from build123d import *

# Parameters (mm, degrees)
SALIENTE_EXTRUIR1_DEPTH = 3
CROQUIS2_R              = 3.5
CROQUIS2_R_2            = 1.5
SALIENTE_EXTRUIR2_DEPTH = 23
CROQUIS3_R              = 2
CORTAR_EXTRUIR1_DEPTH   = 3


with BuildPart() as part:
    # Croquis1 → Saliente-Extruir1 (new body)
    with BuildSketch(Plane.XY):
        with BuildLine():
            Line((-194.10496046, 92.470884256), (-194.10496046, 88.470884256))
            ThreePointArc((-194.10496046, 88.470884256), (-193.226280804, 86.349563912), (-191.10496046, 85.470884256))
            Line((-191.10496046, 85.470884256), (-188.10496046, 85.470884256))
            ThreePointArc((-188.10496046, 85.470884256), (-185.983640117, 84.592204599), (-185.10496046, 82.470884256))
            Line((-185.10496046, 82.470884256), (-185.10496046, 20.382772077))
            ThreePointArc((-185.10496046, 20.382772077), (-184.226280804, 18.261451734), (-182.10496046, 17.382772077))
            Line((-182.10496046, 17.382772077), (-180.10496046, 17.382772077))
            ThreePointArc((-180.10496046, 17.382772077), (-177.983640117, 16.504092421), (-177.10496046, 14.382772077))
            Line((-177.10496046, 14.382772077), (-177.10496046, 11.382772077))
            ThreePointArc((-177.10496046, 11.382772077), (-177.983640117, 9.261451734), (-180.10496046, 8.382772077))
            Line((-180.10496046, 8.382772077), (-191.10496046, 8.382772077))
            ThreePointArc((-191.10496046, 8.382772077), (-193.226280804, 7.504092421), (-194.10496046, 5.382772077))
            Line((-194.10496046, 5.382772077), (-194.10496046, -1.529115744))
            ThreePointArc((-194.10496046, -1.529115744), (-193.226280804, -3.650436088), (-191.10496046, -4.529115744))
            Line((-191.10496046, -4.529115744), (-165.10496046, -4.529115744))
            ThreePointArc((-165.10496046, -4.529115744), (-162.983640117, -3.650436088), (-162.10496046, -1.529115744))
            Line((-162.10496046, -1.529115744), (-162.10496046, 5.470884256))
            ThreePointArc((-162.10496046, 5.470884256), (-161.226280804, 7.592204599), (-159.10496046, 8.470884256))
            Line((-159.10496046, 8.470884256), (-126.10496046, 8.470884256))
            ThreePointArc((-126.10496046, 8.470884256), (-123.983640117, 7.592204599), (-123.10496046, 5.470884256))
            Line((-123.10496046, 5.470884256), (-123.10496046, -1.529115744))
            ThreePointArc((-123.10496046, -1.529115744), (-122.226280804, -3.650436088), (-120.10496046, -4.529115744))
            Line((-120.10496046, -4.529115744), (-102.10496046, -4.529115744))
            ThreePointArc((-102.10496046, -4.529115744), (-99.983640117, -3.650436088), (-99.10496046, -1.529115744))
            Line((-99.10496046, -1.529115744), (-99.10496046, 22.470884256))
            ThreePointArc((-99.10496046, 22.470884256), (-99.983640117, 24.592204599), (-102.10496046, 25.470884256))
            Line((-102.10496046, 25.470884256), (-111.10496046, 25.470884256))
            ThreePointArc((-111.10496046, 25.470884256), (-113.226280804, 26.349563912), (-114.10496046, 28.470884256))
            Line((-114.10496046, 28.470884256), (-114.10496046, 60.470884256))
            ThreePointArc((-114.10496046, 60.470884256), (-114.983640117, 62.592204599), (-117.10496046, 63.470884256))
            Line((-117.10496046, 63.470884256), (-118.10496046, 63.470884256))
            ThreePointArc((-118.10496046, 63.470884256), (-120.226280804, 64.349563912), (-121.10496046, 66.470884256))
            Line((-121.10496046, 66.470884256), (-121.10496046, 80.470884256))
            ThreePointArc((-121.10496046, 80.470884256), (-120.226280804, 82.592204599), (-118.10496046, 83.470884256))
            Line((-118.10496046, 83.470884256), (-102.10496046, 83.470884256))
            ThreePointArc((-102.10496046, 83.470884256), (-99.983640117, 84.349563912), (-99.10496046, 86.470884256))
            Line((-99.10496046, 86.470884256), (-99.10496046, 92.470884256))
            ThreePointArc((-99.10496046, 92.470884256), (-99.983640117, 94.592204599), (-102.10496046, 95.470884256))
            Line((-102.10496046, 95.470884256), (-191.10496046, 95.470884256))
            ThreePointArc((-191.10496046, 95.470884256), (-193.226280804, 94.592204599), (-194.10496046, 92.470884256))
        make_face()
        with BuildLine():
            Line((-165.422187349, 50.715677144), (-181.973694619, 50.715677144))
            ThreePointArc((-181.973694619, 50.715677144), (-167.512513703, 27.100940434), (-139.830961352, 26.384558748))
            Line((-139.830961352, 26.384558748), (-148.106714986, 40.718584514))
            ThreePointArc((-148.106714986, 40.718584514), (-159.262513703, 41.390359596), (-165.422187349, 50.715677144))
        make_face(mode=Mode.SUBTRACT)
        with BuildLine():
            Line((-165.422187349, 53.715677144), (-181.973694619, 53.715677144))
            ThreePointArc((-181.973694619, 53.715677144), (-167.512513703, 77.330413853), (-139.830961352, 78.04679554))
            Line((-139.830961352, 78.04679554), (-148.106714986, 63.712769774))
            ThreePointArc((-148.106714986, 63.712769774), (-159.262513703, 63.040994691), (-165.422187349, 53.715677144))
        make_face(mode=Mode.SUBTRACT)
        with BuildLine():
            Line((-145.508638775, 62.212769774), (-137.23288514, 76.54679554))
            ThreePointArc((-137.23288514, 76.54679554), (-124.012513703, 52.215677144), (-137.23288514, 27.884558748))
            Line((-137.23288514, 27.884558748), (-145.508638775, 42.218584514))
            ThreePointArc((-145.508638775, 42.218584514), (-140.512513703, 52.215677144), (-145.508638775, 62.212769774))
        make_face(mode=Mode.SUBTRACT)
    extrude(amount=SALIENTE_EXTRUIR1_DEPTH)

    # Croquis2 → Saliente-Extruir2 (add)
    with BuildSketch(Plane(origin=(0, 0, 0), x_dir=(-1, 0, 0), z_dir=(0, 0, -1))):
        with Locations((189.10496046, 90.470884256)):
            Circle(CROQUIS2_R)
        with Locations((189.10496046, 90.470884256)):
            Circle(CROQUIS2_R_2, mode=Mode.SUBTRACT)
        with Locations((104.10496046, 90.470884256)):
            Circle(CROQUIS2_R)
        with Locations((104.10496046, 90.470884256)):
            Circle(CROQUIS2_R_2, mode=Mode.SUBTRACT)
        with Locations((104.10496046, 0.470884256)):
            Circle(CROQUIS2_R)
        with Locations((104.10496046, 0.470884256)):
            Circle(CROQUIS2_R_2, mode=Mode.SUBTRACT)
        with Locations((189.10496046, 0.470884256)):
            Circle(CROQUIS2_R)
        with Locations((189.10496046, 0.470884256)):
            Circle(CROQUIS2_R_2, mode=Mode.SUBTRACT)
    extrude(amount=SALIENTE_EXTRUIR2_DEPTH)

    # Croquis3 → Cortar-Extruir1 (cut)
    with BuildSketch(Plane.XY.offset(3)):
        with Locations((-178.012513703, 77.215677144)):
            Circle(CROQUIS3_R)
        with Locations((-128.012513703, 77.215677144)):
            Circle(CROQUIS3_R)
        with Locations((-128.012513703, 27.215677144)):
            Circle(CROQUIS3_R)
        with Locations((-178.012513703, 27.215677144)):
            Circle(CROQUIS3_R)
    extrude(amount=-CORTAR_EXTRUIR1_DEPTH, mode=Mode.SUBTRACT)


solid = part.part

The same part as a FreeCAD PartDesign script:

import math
import FreeCAD as App
import Part
import Sketcher
from FreeCAD import Vector
Q = App.Units.Quantity

doc = App.newDocument("Part")
params = doc.addObject("Spreadsheet::Sheet", "Params")
for row, (alias, value) in enumerate([
    ("sketch1_radius", "3 mm"),
    ("sketch1_radius2", "29 mm"),
    ("sketch1_radius3", "12.5 mm"),
    ("sketch1_width", "3 mm"),
    ("sketch1_width2", "2 mm"),
    ("pad1_length", "3 mm"),
    ("sketch2_diameter", "7 mm"),
    ("sketch2_diameter2", "3 mm"),
    ("pad2_length", "23 mm"),
    ("sketch3_diameter", "4 mm"),
    ("pocket1_length", "3 mm"),
], start=1):
    params.set(f"A{row}", alias)
    params.set(f"B{row}", "=" + value)
    params.setAlias(f"B{row}", alias)

body = doc.addObject("PartDesign::Body", "Body")

sketch1 = doc.addObject("Sketcher::SketchObject", "Sketch")
body.addObject(sketch1)
sketch1.AttachmentSupport = (doc.XY_Plane, [""])
sketch1.MapMode = "FlatFace"
sketch1.addGeometry([
    Part.LineSegment(Vector(-194.1, 92.5, 0), Vector(-194.1, 88.5, 0)),
    Part.ArcOfCircle(Part.Circle(Vector(-191.1, 88.5, 0), Vector(0, 0, 1), 3), math.radians(180), math.radians(270)),
    Part.LineSegment(Vector(-191.1, 85.5, 0), Vector(-188.1, 85.5, 0)),
    Part.ArcOfCircle(Part.Circle(Vector(-188.1, 82.5, 0), Vector(0, 0, 1), 3), math.radians(0), math.radians(90)),
    Part.LineSegment(Vector(-185.1, 82.5, 0), Vector(-185.1, 20.4, 0)),
    Part.ArcOfCircle(Part.Circle(Vector(-182.1, 20.4, 0), Vector(0, 0, 1), 3), math.radians(180), math.radians(270)),
    Part.LineSegment(Vector(-182.1, 17.4, 0), Vector(-180.1, 17.4, 0)),
    Part.ArcOfCircle(Part.Circle(Vector(-180.1, 14.4, 0), Vector(0, 0, 1), 3), math.radians(0), math.radians(90)),
    Part.LineSegment(Vector(-177.1, 14.4, 0), Vector(-177.1, 11.4, 0)),
    Part.ArcOfCircle(Part.Circle(Vector(-180.1, 11.4, 0), Vector(0, 0, 1), 3), math.radians(-90), math.radians(0)),
    Part.LineSegment(Vector(-180.1, 8.4, 0), Vector(-191.1, 8.4, 0)),
    Part.ArcOfCircle(Part.Circle(Vector(-191.1, 5.4, 0), Vector(0, 0, 1), 3), math.radians(90), math.radians(180)),
    Part.LineSegment(Vector(-194.1, 5.4, 0), Vector(-194.1, -1.5, 0)),
    Part.ArcOfCircle(Part.Circle(Vector(-191.1, -1.5, 0), Vector(0, 0, 1), 3), math.radians(180), math.radians(270)),
    Part.LineSegment(Vector(-191.1, -4.5, 0), Vector(-165.1, -4.5, 0)),
    Part.ArcOfCircle(Part.Circle(Vector(-165.1, -1.5, 0), Vector(0, 0, 1), 3), math.radians(-90), math.radians(0)),
    Part.LineSegment(Vector(-162.1, -1.5, 0), Vector(-162.1, 5.5, 0)),
    Part.ArcOfCircle(Part.Circle(Vector(-159.1, 5.5, 0), Vector(0, 0, 1), 3), math.radians(90), math.radians(180)),
    Part.LineSegment(Vector(-159.1, 8.5, 0), Vector(-126.1, 8.5, 0)),
    Part.ArcOfCircle(Part.Circle(Vector(-126.1, 5.5, 0), Vector(0, 0, 1), 3), math.radians(0), math.radians(90)),
    Part.LineSegment(Vector(-123.1, 5.5, 0), Vector(-123.1, -1.5, 0)),
    Part.ArcOfCircle(Part.Circle(Vector(-120.1, -1.5, 0), Vector(0, 0, 1), 3), math.radians(180), math.radians(270)),
    Part.LineSegment(Vector(-120.1, -4.5, 0), Vector(-102.1, -4.5, 0)),
    Part.ArcOfCircle(Part.Circle(Vector(-102.1, -1.5, 0), Vector(0, 0, 1), 3), math.radians(-90), math.radians(0)),
    Part.LineSegment(Vector(-99.1, -1.5, 0), Vector(-99.1, 22.5, 0)),
    Part.ArcOfCircle(Part.Circle(Vector(-102.1, 22.5, 0), Vector(0, 0, 1), 3), math.radians(0), math.radians(90)),
    Part.LineSegment(Vector(-102.1, 25.5, 0), Vector(-111.1, 25.5, 0)),
    Part.ArcOfCircle(Part.Circle(Vector(-111.1, 28.5, 0), Vector(0, 0, 1), 3), math.radians(180), math.radians(270)),
    Part.LineSegment(Vector(-114.1, 28.5, 0), Vector(-114.1, 60.5, 0)),
    Part.ArcOfCircle(Part.Circle(Vector(-117.1, 60.5, 0), Vector(0, 0, 1), 3), math.radians(0), math.radians(90)),
    Part.LineSegment(Vector(-117.1, 63.5, 0), Vector(-118.1, 63.5, 0)),
    Part.ArcOfCircle(Part.Circle(Vector(-118.1, 66.5, 0), Vector(0, 0, 1), 3), math.radians(180), math.radians(270)),
    Part.LineSegment(Vector(-121.1, 66.5, 0), Vector(-121.1, 80.5, 0)),
    Part.ArcOfCircle(Part.Circle(Vector(-118.1, 80.5, 0), Vector(0, 0, 1), 3), math.radians(90), math.radians(180)),
    Part.LineSegment(Vector(-118.1, 83.5, 0), Vector(-102.1, 83.5, 0)),
    Part.ArcOfCircle(Part.Circle(Vector(-102.1, 86.5, 0), Vector(0, 0, 1), 3), math.radians(-90), math.radians(0)),
    Part.LineSegment(Vector(-99.1, 86.5, 0), Vector(-99.1, 92.5, 0)),
    Part.ArcOfCircle(Part.Circle(Vector(-102.1, 92.5, 0), Vector(0, 0, 1), 3), math.radians(0), math.radians(90)),
    Part.LineSegment(Vector(-102.1, 95.5, 0), Vector(-191.1, 95.5, 0)),
    Part.ArcOfCircle(Part.Circle(Vector(-191.1, 92.5, 0), Vector(0, 0, 1), 3), math.radians(90), math.radians(180)),
    Part.LineSegment(Vector(-182, 50.7, 0), Vector(-165.4, 50.7, 0)),
    Part.ArcOfCircle(Part.Circle(Vector(-153, 52.2, 0), Vector(0, 0, 1), 12.5), math.radians(-173), math.radians(-67)),
    Part.LineSegment(Vector(-148.1, 40.7, 0), Vector(-139.8, 26.4, 0)),
    Part.ArcOfCircle(Part.Circle(Vector(-153, 52.2, 0), Vector(0, 0, 1), 29), math.radians(-177), math.radians(-63)),
    Part.ArcOfCircle(Part.Circle(Vector(-153, 52.2, 0), Vector(0, 0, 1), 12.5), math.radians(67), math.radians(173)),
    Part.LineSegment(Vector(-165.4, 53.7, 0), Vector(-182, 53.7, 0)),
    Part.ArcOfCircle(Part.Circle(Vector(-153, 52.2, 0), Vector(0, 0, 1), 29), math.radians(63), math.radians(177)),
    Part.LineSegment(Vector(-139.8, 78, 0), Vector(-148.1, 63.7, 0)),
    Part.ArcOfCircle(Part.Circle(Vector(-153, 52.2, 0), Vector(0, 0, 1), 12.5), math.radians(-53), math.radians(53)),
    Part.LineSegment(Vector(-145.5, 62.2, 0), Vector(-137.2, 76.5, 0)),
    Part.ArcOfCircle(Part.Circle(Vector(-153, 52.2, 0), Vector(0, 0, 1), 29), math.radians(-57), math.radians(57)),
    Part.LineSegment(Vector(-137.2, 27.9, 0), Vector(-145.5, 42.2, 0)),
], False)
sketch1.addConstraint([
    Sketcher.Constraint("Tangent", 0, 2, 1, 1),
    Sketcher.Constraint("Tangent", 1, 2, 2, 1),
    Sketcher.Constraint("Tangent", 2, 2, 3, 2),
    Sketcher.Constraint("Tangent", 3, 1, 4, 1),
    Sketcher.Constraint("Tangent", 4, 2, 5, 1),
    Sketcher.Constraint("Tangent", 5, 2, 6, 1),
    Sketcher.Constraint("Tangent", 6, 2, 7, 2),
    Sketcher.Constraint("Tangent", 7, 1, 8, 1),
    Sketcher.Constraint("Tangent", 8, 2, 9, 2),
    Sketcher.Constraint("Tangent", 9, 1, 10, 1),
    Sketcher.Constraint("Tangent", 10, 2, 11, 1),
    Sketcher.Constraint("Tangent", 11, 2, 12, 1),
    Sketcher.Constraint("Tangent", 12, 2, 13, 1),
    Sketcher.Constraint("Tangent", 13, 2, 14, 1),
    Sketcher.Constraint("Tangent", 14, 2, 15, 1),
    Sketcher.Constraint("Tangent", 15, 2, 16, 1),
    Sketcher.Constraint("Tangent", 16, 2, 17, 2),
    Sketcher.Constraint("Tangent", 17, 1, 18, 1),
    Sketcher.Constraint("Tangent", 18, 2, 19, 2),
    Sketcher.Constraint("Tangent", 19, 1, 20, 1),
    Sketcher.Constraint("Tangent", 20, 2, 21, 1),
    Sketcher.Constraint("Tangent", 21, 2, 22, 1),
    Sketcher.Constraint("Tangent", 22, 2, 23, 1),
    Sketcher.Constraint("Tangent", 23, 2, 24, 1),
    Sketcher.Constraint("Tangent", 24, 2, 25, 1),
    Sketcher.Constraint("Tangent", 25, 2, 26, 1),
    Sketcher.Constraint("Tangent", 26, 2, 27, 2),
    Sketcher.Constraint("Tangent", 27, 1, 28, 1),
    Sketcher.Constraint("Tangent", 28, 2, 29, 1),
    Sketcher.Constraint("Tangent", 29, 2, 30, 1),
    Sketcher.Constraint("Tangent", 30, 2, 31, 2),
    Sketcher.Constraint("Tangent", 31, 1, 32, 1),
    Sketcher.Constraint("Tangent", 32, 2, 33, 2),
    Sketcher.Constraint("Tangent", 33, 1, 34, 1),
    Sketcher.Constraint("Tangent", 34, 2, 35, 1),
    Sketcher.Constraint("Tangent", 35, 2, 36, 1),
    Sketcher.Constraint("Tangent", 36, 2, 37, 1),
    Sketcher.Constraint("Tangent", 37, 2, 38, 1),
    Sketcher.Constraint("Tangent", 38, 2, 39, 1),
    Sketcher.Constraint("Tangent", 39, 2, 0, 1),
    Sketcher.Constraint("Coincident", 40, 2, 41, 1),
    Sketcher.Constraint("Coincident", 41, 2, 42, 1),
    Sketcher.Constraint("Coincident", 42, 2, 43, 2),
    Sketcher.Constraint("Coincident", 43, 1, 40, 1),
    Sketcher.Constraint("Coincident", 44, 2, 45, 1),
    Sketcher.Constraint("Coincident", 45, 2, 46, 2),
    Sketcher.Constraint("Coincident", 46, 1, 47, 1),
    Sketcher.Constraint("Coincident", 47, 2, 44, 1),
    Sketcher.Constraint("Coincident", 48, 2, 49, 1),
    Sketcher.Constraint("Coincident", 49, 2, 50, 2),
    Sketcher.Constraint("Coincident", 50, 1, 51, 1),
    Sketcher.Constraint("Coincident", 51, 2, 48, 1),
    Sketcher.Constraint("Vertical", 0),
    Sketcher.Constraint("Horizontal", 2),
    Sketcher.Constraint("Vertical", 4),
    Sketcher.Constraint("Horizontal", 6),
    Sketcher.Constraint("Vertical", 8),
    Sketcher.Constraint("Horizontal", 10),
    Sketcher.Constraint("Vertical", 12),
    Sketcher.Constraint("Horizontal", 14),
    Sketcher.Constraint("Vertical", 16),
    Sketcher.Constraint("Horizontal", 18),
    Sketcher.Constraint("Vertical", 20),
    Sketcher.Constraint("Horizontal", 22),
    Sketcher.Constraint("Vertical", 24),
    Sketcher.Constraint("Horizontal", 26),
    Sketcher.Constraint("Vertical", 28),
    Sketcher.Constraint("Horizontal", 30),
    Sketcher.Constraint("Vertical", 32),
    Sketcher.Constraint("Horizontal", 34),
    Sketcher.Constraint("Vertical", 36),
    Sketcher.Constraint("Horizontal", 38),
    Sketcher.Constraint("Horizontal", 40),
    Sketcher.Constraint("Horizontal", 45),
    Sketcher.Constraint("Coincident", 43, 3, 41, 3),
    Sketcher.Constraint("Coincident", 44, 3, 41, 3),
    Sketcher.Constraint("Coincident", 46, 3, 41, 3),
    Sketcher.Constraint("Coincident", 48, 3, 41, 3),
    Sketcher.Constraint("Coincident", 50, 3, 41, 3),
    Sketcher.Constraint("Equal", 1, 3),
    Sketcher.Constraint("Equal", 3, 5),
    Sketcher.Constraint("Equal", 5, 7),
    Sketcher.Constraint("Equal", 7, 9),
    Sketcher.Constraint("Equal", 9, 11),
    Sketcher.Constraint("Equal", 11, 13),
    Sketcher.Constraint("Equal", 13, 15),
    Sketcher.Constraint("Equal", 15, 17),
    Sketcher.Constraint("Equal", 17, 19),
    Sketcher.Constraint("Equal", 19, 21),
    Sketcher.Constraint("Equal", 21, 23),
    Sketcher.Constraint("Equal", 23, 25),
    Sketcher.Constraint("Equal", 25, 27),
    Sketcher.Constraint("Equal", 27, 29),
    Sketcher.Constraint("Equal", 29, 31),
    Sketcher.Constraint("Equal", 31, 33),
    Sketcher.Constraint("Equal", 33, 35),
    Sketcher.Constraint("Equal", 35, 37),
    Sketcher.Constraint("Equal", 37, 39),
    Sketcher.Constraint("Equal", 41, 44),
    Sketcher.Constraint("Equal", 43, 46),
    Sketcher.Constraint("Equal", 44, 48),
    Sketcher.Constraint("Equal", 46, 50),
    Sketcher.Constraint("Parallel", 47, 49),
    Sketcher.Constraint("Parallel", 42, 51),
    Sketcher.Constraint("Horizontal", 15, 3, 21, 3),
    Sketcher.Constraint("Vertical", 1, 3, 11, 3),
    Sketcher.Constraint("Vertical", 25, 3, 35, 3),
    Sketcher.Constraint("Vertical", 40, 2, 44, 2),
    Sketcher.Constraint("Vertical", 42, 2, 46, 1),
    Sketcher.Constraint("Vertical", 41, 2, 47, 2),
    Sketcher.Constraint("Vertical", 49, 2, 50, 1),
    Sketcher.Constraint("Equal", 2, 8),
    Sketcher.Constraint("Equal", 47, 49),
    Sketcher.Constraint("Radius", 1, Q("3 mm")),
    Sketcher.Constraint("Radius", 43, Q("29 mm")),
    Sketcher.Constraint("Radius", 41, Q("12.5 mm")),
    Sketcher.Constraint("DistanceX", 2, 1, 2, 2, Q("3 mm")),
    Sketcher.Constraint("DistanceX", 6, 1, 6, 2, Q("2 mm")),
    Sketcher.Constraint("DistanceX", 14, 1, 14, 2, Q("26 mm")),
    Sketcher.Constraint("DistanceX", 18, 1, 18, 2, Q("33 mm")),
    Sketcher.Constraint("DistanceX", 22, 1, 22, 2, Q("18 mm")),
    Sketcher.Constraint("DistanceX", 26, 2, 26, 1, Q("9 mm")),
    Sketcher.Constraint("DistanceX", 30, 2, 30, 1, Q("1 mm")),
    Sketcher.Constraint("DistanceY", 0, 2, 0, 1, Q("4 mm")),
    Sketcher.Constraint("DistanceY", 16, 1, 16, 2, Q("7 mm")),
    Sketcher.Constraint("DistanceY", 24, 1, 24, 2, Q("24 mm")),
    Sketcher.Constraint("DistanceY", 28, 1, 28, 2, Q("32 mm")),
    Sketcher.Constraint("DistanceY", 32, 1, 32, 2, Q("14 mm")),
    Sketcher.Constraint("DistanceY", 36, 1, 36, 2, Q("6 mm")),
    Sketcher.Constraint("Angle", 42, Q("-60 deg")),
    Sketcher.Constraint("DistanceX", 40, 1, 40, 2, Q("16.551507 mm")),
    Sketcher.Constraint("DistanceY", 4, 2, 4, 1, Q("62.088112 mm")),
    Sketcher.Constraint("DistanceX", 1, 3, -1, 1, Q("191.10496 mm")),
    Sketcher.Constraint("DistanceX", 42, 2, -1, 1, Q("139.830961 mm")),
    Sketcher.Constraint("DistanceY", -1, 1, 42, 2, Q("26.384559 mm")),
    Sketcher.Constraint("DistanceY", -1, 1, 47, 2, Q("63.71277 mm")),
    Sketcher.Constraint("DistanceY", -1, 1, 1, 3, Q("88.470884 mm")),
])
sketch1.setExpression("Constraints[113]", "Params.sketch1_radius")
sketch1.setExpression("Constraints[114]", "Params.sketch1_radius2")
sketch1.setExpression("Constraints[115]", "Params.sketch1_radius3")
sketch1.setExpression("Constraints[116]", "Params.sketch1_width")
sketch1.setExpression("Constraints[117]", "Params.sketch1_width2")
pad1 = doc.addObject("PartDesign::Pad", "Pad")
body.addObject(pad1)
pad1.Profile = sketch1
pad1.setExpression("Length", "Params.pad1_length")

sketch2 = doc.addObject("Sketcher::SketchObject", "Sketch001")
body.addObject(sketch2)
sketch2.AttachmentSupport = (doc.XY_Plane, [""])
sketch2.MapMode = "FlatFace"
sketch2.addGeometry([
    Part.Circle(Vector(-189.1, 90.5, 0), Vector(0, 0, 1), 3.5),
    Part.Circle(Vector(-189.1, 90.5, 0), Vector(0, 0, 1), 1.5),
    Part.Circle(Vector(-104.1, 90.5, 0), Vector(0, 0, 1), 3.5),
    Part.Circle(Vector(-104.1, 90.5, 0), Vector(0, 0, 1), 1.5),
    Part.Circle(Vector(-104.1, 0.5, 0), Vector(0, 0, 1), 3.5),
    Part.Circle(Vector(-104.1, 0.5, 0), Vector(0, 0, 1), 1.5),
    Part.Circle(Vector(-189.1, 0.5, 0), Vector(0, 0, 1), 3.5),
    Part.Circle(Vector(-189.1, 0.5, 0), Vector(0, 0, 1), 1.5),
], False)
sketch2.addConstraint([
    Sketcher.Constraint("Coincident", 1, 3, 0, 3),
    Sketcher.Constraint("Coincident", 3, 3, 2, 3),
    Sketcher.Constraint("Coincident", 5, 3, 4, 3),
    Sketcher.Constraint("Coincident", 7, 3, 6, 3),
    Sketcher.Constraint("Equal", 0, 2),
    Sketcher.Constraint("Equal", 1, 3),
    Sketcher.Constraint("Equal", 2, 4),
    Sketcher.Constraint("Equal", 3, 5),
    Sketcher.Constraint("Equal", 4, 6),
    Sketcher.Constraint("Equal", 5, 7),
    Sketcher.Constraint("Horizontal", 1, 3, 2, 3),
    Sketcher.Constraint("Horizontal", 5, 3, 6, 3),
    Sketcher.Constraint("Vertical", 3, 3, 4, 3),
    Sketcher.Constraint("Vertical", 1, 3, 6, 3),
    Sketcher.Constraint("Diameter", 0, Q("7 mm")),
    Sketcher.Constraint("Diameter", 1, Q("3 mm")),
    Sketcher.Constraint("DistanceX", 0, 3, 2, 3, Q("85 mm")),
    Sketcher.Constraint("DistanceY", 4, 3, 2, 3, Q("90 mm")),
    Sketcher.Constraint("DistanceX", 0, 3, -1, 1, Q("189.10496 mm")),
    Sketcher.Constraint("DistanceY", -1, 1, 0, 3, Q("90.470884 mm")),
])
sketch2.setExpression("Constraints[14]", "Params.sketch2_diameter")
sketch2.setExpression("Constraints[15]", "Params.sketch2_diameter2")
pad2 = doc.addObject("PartDesign::Pad", "Pad001")
body.addObject(pad2)
pad2.Profile = sketch2
pad2.setExpression("Length", "Params.pad2_length")
pad2.Reversed = True

sketch3 = doc.addObject("Sketcher::SketchObject", "Sketch002")
body.addObject(sketch3)
sketch3.AttachmentSupport = (doc.XY_Plane, [""])
sketch3.MapMode = "FlatFace"
sketch3.AttachmentOffset = App.Placement(Vector(0, 0, 3), App.Rotation())
sketch3.addGeometry([
    Part.Circle(Vector(-178, 77.2, 0), Vector(0, 0, 1), 2),
    Part.Circle(Vector(-128, 77.2, 0), Vector(0, 0, 1), 2),
    Part.Circle(Vector(-128, 27.2, 0), Vector(0, 0, 1), 2),
    Part.Circle(Vector(-178, 27.2, 0), Vector(0, 0, 1), 2),
], False)
sketch3.addConstraint([
    Sketcher.Constraint("Equal", 0, 1),
    Sketcher.Constraint("Equal", 1, 2),
    Sketcher.Constraint("Equal", 2, 3),
    Sketcher.Constraint("Horizontal", 0, 3, 1, 3),
    Sketcher.Constraint("Horizontal", 2, 3, 3, 3),
    Sketcher.Constraint("Vertical", 1, 3, 2, 3),
    Sketcher.Constraint("Vertical", 0, 3, 3, 3),
    Sketcher.Constraint("Diameter", 0, Q("4 mm")),
    Sketcher.Constraint("DistanceX", 0, 3, 1, 3, Q("50 mm")),
    Sketcher.Constraint("DistanceY", 2, 3, 1, 3, Q("50 mm")),
    Sketcher.Constraint("DistanceX", 0, 3, -1, 1, Q("178.012514 mm")),
    Sketcher.Constraint("DistanceY", -1, 1, 0, 3, Q("77.215677 mm")),
])
sketch3.setExpression("Constraints[7]", "Params.sketch3_diameter")
pocket1 = doc.addObject("PartDesign::Pocket", "Pocket")
body.addObject(pocket1)
pocket1.Profile = sketch3
pocket1.setExpression("Length", "Params.pocket1_length")

doc.recompute()
